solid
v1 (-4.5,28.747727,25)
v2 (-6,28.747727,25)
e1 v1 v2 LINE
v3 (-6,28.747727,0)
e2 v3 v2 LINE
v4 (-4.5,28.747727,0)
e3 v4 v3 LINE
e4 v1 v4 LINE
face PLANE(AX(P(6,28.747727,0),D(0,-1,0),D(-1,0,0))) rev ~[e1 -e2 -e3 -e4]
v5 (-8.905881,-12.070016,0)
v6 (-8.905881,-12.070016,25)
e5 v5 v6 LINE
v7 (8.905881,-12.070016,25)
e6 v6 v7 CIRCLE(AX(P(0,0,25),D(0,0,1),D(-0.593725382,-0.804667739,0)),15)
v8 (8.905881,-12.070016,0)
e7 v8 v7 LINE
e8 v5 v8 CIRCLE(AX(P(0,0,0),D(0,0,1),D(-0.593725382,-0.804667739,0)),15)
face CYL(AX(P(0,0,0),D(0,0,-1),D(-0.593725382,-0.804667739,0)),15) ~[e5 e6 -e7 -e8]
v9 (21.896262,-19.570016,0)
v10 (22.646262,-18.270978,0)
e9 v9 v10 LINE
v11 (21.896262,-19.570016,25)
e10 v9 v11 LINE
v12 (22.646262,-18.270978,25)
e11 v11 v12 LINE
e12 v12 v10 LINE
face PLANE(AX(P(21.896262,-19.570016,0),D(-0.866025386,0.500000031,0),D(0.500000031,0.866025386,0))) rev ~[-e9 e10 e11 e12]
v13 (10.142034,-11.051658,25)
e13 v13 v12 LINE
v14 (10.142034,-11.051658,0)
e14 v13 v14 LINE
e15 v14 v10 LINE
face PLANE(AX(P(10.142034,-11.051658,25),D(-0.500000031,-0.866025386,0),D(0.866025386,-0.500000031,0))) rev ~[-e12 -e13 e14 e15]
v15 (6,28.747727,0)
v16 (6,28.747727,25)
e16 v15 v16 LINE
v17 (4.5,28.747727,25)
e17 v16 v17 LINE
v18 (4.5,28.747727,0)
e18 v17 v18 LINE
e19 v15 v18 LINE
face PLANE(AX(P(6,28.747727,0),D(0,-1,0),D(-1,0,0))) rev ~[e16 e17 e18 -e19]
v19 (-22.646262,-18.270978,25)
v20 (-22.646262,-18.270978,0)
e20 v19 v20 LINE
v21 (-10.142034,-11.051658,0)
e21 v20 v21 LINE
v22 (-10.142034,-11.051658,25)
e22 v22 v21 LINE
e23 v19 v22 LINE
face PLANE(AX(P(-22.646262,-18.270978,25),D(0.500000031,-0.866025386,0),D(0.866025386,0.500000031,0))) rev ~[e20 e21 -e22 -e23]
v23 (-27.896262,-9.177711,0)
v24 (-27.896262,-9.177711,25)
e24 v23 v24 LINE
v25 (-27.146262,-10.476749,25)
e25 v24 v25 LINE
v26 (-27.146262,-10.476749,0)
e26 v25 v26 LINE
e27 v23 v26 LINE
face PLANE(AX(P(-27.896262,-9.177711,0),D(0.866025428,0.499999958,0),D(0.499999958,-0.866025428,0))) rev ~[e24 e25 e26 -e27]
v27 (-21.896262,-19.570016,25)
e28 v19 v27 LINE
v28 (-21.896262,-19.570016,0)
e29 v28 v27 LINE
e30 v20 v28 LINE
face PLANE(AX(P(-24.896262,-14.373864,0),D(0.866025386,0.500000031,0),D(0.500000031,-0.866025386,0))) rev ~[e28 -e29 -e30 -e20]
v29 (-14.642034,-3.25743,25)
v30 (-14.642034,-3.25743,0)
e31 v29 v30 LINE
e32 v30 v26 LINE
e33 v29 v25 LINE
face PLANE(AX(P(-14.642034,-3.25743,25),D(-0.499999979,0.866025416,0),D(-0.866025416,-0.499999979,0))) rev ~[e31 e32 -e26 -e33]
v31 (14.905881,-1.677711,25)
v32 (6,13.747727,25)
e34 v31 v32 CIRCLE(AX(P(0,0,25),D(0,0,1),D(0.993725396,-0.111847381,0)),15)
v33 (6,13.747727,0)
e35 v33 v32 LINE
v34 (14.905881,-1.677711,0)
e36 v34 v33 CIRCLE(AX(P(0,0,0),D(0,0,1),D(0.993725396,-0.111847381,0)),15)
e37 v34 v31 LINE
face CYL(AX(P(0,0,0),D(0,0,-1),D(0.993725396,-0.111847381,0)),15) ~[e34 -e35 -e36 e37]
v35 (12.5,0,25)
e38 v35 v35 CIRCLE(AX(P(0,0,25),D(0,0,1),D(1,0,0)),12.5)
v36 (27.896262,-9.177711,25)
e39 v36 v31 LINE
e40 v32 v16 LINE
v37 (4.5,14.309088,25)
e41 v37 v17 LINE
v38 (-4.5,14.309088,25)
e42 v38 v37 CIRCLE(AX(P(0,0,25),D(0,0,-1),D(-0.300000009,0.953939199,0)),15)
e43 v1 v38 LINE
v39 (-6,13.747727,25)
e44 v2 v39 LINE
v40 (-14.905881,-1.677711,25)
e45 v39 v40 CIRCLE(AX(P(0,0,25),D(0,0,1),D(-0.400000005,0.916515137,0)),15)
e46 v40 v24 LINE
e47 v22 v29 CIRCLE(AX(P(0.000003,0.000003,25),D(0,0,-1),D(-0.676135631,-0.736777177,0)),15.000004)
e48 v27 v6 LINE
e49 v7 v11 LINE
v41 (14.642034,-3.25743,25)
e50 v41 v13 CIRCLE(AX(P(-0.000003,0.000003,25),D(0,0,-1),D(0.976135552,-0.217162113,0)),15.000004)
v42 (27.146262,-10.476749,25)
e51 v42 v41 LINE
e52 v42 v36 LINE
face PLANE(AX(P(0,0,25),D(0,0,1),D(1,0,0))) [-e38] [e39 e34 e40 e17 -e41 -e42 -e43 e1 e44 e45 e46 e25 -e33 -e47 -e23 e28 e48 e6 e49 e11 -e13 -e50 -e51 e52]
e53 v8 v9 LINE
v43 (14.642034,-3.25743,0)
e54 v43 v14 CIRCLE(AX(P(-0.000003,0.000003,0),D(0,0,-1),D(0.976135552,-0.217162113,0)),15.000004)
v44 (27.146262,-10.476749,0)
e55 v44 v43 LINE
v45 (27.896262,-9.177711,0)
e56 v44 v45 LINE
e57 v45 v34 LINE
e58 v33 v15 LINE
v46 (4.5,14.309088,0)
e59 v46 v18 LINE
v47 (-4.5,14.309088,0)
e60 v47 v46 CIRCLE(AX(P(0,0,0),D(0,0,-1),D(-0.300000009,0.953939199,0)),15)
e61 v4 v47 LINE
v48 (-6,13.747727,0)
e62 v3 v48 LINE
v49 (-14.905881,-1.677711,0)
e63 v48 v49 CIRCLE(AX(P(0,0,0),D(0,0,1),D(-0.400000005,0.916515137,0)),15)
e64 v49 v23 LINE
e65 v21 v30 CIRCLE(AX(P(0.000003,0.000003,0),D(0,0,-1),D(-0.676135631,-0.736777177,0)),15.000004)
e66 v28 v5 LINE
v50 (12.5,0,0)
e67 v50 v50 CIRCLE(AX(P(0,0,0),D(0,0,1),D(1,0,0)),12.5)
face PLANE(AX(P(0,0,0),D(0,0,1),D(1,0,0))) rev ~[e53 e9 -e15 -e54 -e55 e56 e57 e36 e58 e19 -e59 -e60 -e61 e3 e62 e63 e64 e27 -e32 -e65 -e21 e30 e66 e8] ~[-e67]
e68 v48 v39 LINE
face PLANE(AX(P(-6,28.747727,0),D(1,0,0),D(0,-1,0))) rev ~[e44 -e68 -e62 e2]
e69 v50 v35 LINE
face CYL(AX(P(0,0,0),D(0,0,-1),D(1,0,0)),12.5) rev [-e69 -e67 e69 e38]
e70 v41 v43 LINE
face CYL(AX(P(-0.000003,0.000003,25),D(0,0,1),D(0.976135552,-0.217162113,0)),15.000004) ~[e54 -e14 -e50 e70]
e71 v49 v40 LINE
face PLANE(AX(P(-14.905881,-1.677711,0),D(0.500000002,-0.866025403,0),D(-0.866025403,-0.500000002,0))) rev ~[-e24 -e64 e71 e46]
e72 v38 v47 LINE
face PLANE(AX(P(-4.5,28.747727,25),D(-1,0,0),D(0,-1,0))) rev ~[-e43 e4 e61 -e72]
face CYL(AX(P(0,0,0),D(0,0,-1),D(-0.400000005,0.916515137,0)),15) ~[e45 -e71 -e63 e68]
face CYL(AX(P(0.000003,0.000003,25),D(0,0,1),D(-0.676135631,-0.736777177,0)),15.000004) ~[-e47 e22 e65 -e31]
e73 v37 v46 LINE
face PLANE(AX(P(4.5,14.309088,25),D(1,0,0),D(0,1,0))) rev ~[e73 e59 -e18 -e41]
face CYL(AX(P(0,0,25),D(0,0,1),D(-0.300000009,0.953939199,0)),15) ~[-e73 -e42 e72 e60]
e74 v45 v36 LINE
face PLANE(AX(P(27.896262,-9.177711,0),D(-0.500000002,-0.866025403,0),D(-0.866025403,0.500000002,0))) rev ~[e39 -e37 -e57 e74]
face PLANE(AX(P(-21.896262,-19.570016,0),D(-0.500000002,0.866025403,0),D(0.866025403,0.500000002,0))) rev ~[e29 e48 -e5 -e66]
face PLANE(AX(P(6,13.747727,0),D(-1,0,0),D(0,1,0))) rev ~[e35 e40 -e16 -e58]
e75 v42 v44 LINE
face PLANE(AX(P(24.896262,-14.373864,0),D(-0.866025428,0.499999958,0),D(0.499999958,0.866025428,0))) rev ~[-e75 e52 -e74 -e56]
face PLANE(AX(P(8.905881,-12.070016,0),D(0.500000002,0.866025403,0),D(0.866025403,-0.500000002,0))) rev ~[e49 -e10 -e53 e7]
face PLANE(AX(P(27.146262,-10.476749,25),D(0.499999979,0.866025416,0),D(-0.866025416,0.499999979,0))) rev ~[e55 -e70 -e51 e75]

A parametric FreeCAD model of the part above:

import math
import FreeCAD as App
import Part
import Sketcher

V = App.Vector
Q = App.Units.Quantity

doc = App.newDocument("Part")
body = doc.addObject("PartDesign::Body", "Body")

# Sketch on XY plane
sketch1 = body.newObject("Sketcher::SketchObject", "Sketch")
sketch1.AttachmentSupport = (doc.getObject("XY_Plane"), [""])
sketch1.MapMode = "FlatFace"
sketch1.addGeometry([
    Part.LineSegment(V(-6, 29, 0), V(-6, 14, 0)),  # 0
    Part.ArcOfCircle(Part.Circle(V(0, 0, 0), V(0, 0, 1), 15), math.radians(114), math.radians(186)),  # 1
    Part.LineSegment(V(-15, -2, 0), V(-28, -9, 0)),  # 2
    Part.LineSegment(V(-28, -9, 0), V(-25, -14, 0)),  # 3
    Part.LineSegment(V(-25, -14, 0), V(-22, -20, 0)),  # 4
    Part.LineSegment(V(-22, -20, 0), V(-9, -12, 0)),  # 5
    Part.ArcOfCircle(Part.Circle(V(0, 0, 0), V(0, 0, 1), 15), math.radians(-126), math.radians(-54)),  # 6
    Part.LineSegment(V(9, -12, 0), V(22, -20, 0)),  # 7
    Part.LineSegment(V(22, -20, 0), V(25, -14, 0)),  # 8
    Part.LineSegment(V(25, -14, 0), V(28, -9, 0)),  # 9
    Part.LineSegment(V(28, -9, 0), V(15, -2, 0)),  # 10
    Part.ArcOfCircle(Part.Circle(V(0, 0, 0), V(0, 0, 1), 15), math.radians(-6), math.radians(66)),  # 11
    Part.LineSegment(V(6, 14, 0), V(6, 29, 0)),  # 12
    Part.LineSegment(V(6, 29, 0), V(-6, 29, 0)),  # 13
    Part.Circle(V(0, 0, 0), V(0, 0, 1), 12),  # 14
], False)
sketch1.addConstraint([
    Sketcher.Constraint("Coincident", 0, 2, 1, 1),
    Sketcher.Constraint("Coincident", 1, 2, 2, 1),
    Sketcher.Constraint("Coincident", 2, 2, 3, 1),
    Sketcher.Constraint("Coincident", 3, 2, 4, 1),
    Sketcher.Constraint("Coincident", 4, 2, 5, 1),
    Sketcher.Constraint("Coincident", 5, 2, 6, 1),
    Sketcher.Constraint("Coincident", 6, 2, 7, 1),
    Sketcher.Constraint("Coincident", 7, 2, 8, 1),
    Sketcher.Constraint("Coincident", 8, 2, 9, 1),
    Sketcher.Constraint("Coincident", 9, 2, 10, 1),
    Sketcher.Constraint("Coincident", 10, 2, 11, 1),
    Sketcher.Constraint("Coincident", 11, 2, 12, 1),
    Sketcher.Constraint("Coincident", 12, 2, 13, 1),
    Sketcher.Constraint("Coincident", 13, 2, 0, 1),
    Sketcher.Constraint("Vertical", 0),
    Sketcher.Constraint("Vertical", 12),
    Sketcher.Constraint("Horizontal", 13),
    Sketcher.Constraint("Coincident", 1, 3, -1, 1),
    Sketcher.Constraint("Coincident", 6, 3, -1, 1),
    Sketcher.Constraint("Coincident", 11, 3, -1, 1),
    Sketcher.Constraint("Coincident", 14, 3, -1, 1),
    Sketcher.Constraint("Equal", 1, 6),
    Sketcher.Constraint("Equal", 6, 11),
    Sketcher.Constraint("Symmetric", 4, 2, 7, 2, -2),
    Sketcher.Constraint("Symmetric", 3, 2, 8, 2, -2),
    Sketcher.Constraint("Symmetric", 2, 2, 9, 2, -2),
    Sketcher.Constraint("Perpendicular", 2, 3),
    Sketcher.Constraint("Parallel", 3, 4),
    Sketcher.Constraint("Perpendicular", 4, 5),
    Sketcher.Constraint("Perpendicular", 7, 8),
    Sketcher.Constraint("Perpendicular", 9, 10),
    Sketcher.Constraint("Horizontal", 0, 2, 11, 2),
    Sketcher.Constraint("Equal", 3, 4),
    Sketcher.Constraint("Equal", 2, 5),
    Sketcher.Constraint("Diameter", 14, Q("25 mm")),
    Sketcher.Constraint("Radius", 1, Q("15 mm")),
    Sketcher.Constraint("DistanceX", 13, 2, 13, 1, Q("12 mm")),
    Sketcher.Constraint("DistanceY", 0, 2, 0, 1, Q("15 mm")),
    Sketcher.Constraint("Angle", 2, Q("-150 deg")),
    Sketcher.Constraint("Distance", 2, Q("15 mm")),
    Sketcher.Constraint("Distance", 3, Q("6 mm")),
])
pad1 = body.newObject("PartDesign::Pad", "Pad")
pad1.Profile = sketch1
pad1.Length = 25

# Sketch on XY plane
sketch2 = body.newObject("Sketcher::SketchObject", "Sketch001")
sketch2.AttachmentSupport = (doc.getObject("XY_Plane"), [""])
sketch2.MapMode = "FlatFace"
sketch2.AttachmentOffset = App.Placement(V(0, 0, 25), App.Rotation())
sketch2.addGeometry([
    Part.LineSegment(V(4, 29, 0), V(-4, 29, 0)),  # 0
    Part.LineSegment(V(-4, 29, 0), V(-4, 14, 0)),  # 1
    Part.ArcOfCircle(Part.Circle(V(0, 0, 0), V(0, 0, 1), 15), math.radians(73), math.radians(107)),  # 2
    Part.LineSegment(V(4, 14, 0), V(4, 29, 0)),  # 3
    Part.LineSegment(V(27, -10, 0), V(15, -3, 0)),  # 4
    Part.ArcOfCircle(Part.Circle(V(0, 0, 0), V(0, 0, 1), 15), math.radians(-47), math.radians(-13)),  # 5
    Part.LineSegment(V(10, -11, 0), V(23, -18, 0)),  # 6
    Part.LineSegment(V(23, -18, 0), V(27, -10, 0)),  # 7
    Part.LineSegment(V(-23, -18, 0), V(-10, -11, 0)),  # 8
    Part.ArcOfCircle(Part.Circle(V(0, 0, 0), V(0, 0, 1), 15), math.radians(-167), math.radians(-133)),  # 9
    Part.LineSegment(V(-15, -3, 0), V(-27, -10, 0)),  # 10
    Part.LineSegment(V(-27, -10, 0), V(-23, -18, 0)),  # 11
], False)
sketch2.addConstraint([
    Sketcher.Constraint("Coincident", 0, 2, 1, 1),
    Sketcher.Constraint("Coincident", 1, 2, 2, 2),
    Sketcher.Constraint("Coincident", 2, 1, 3, 1),
    Sketcher.Constraint("Coincident", 3, 2, 0, 1),
    Sketcher.Constraint("Coincident", 4, 2, 5, 2),
    Sketcher.Constraint("Coincident", 5, 1, 6, 1),
    Sketcher.Constraint("Coincident", 6, 2, 7, 1),
    Sketcher.Constraint("Coincident", 7, 2, 4, 1),
    Sketcher.Constraint("Coincident", 8, 2, 9, 2),
    Sketcher.Constraint("Coincident", 9, 1, 10, 1),
    Sketcher.Constraint("Coincident", 10, 2, 11, 1),
    Sketcher.Constraint("Coincident", 11, 2, 8, 1),
    Sketcher.Constraint("Horizontal", 0),
    Sketcher.Constraint("Vertical", 1),
    Sketcher.Constraint("Vertical", 3),
    Sketcher.Constraint("Coincident", 2, 3, -1, 1),
    Sketcher.Constraint("Coincident", 5, 3, -1, 1),
    Sketcher.Constraint("Coincident", 9, 3, -1, 1),
    Sketcher.Constraint("Equal", 5, 9),
    Sketcher.Constraint("Symmetric", 7, 2, 10, 2, -2),
    Sketcher.Constraint("Symmetric", 6, 2, 11, 2, -2),
    Sketcher.Constraint("Parallel", 4, 6),
    Sketcher.Constraint("Perpendicular", 6, 7),
    Sketcher.Constraint("Parallel", 8, 10),
    Sketcher.Constraint("Perpendicular", 10, 11),
    Sketcher.Constraint("Horizontal", 1, 2, 2, 1),
    Sketcher.Constraint("Equal", 4, 6),
    Sketcher.Constraint("Radius", 2, Q("15 mm")),
    Sketcher.Constraint("DistanceX", 0, 2, 0, 1, Q("9 mm")),
    Sketcher.Constraint("Angle", 4, Q("150.000001 deg")),
    Sketcher.Constraint("Distance", 7, Q("9 mm")),
    Sketcher.Constraint("Radius", 5, Q("15.000004 mm")),
    Sketcher.Constraint("DistanceY", 1, 2, 1, 1, Q("14.438639 mm")),
    Sketcher.Constraint("Distance", 4, Q("14.438639 mm")),
])
pocket1 = body.newObject("PartDesign::Pocket", "Pocket")
pocket1.Profile = sketch2
pocket1.Length = 25

doc.recompute()
